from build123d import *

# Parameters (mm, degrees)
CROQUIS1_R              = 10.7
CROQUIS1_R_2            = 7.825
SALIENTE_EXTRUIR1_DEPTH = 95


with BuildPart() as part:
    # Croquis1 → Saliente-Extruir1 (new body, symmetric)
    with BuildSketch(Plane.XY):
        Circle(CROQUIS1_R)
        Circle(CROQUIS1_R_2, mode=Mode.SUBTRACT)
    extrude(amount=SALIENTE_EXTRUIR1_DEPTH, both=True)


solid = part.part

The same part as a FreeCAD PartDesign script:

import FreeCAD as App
import Part
import Sketcher

V = App.Vector
Q = App.Units.Quantity

doc = App.newDocument("Part")
params = doc.addObject("Spreadsheet::Sheet", "Params")
for row, (alias, value) in enumerate([
    ("sketch1_diameter", "21.4 mm"),
    ("sketch1_diameter2", "15.65 mm"),
    ("pad1_length", "190 mm"),
], start=1):
    params.set(f"A{row}", alias)
    params.set(f"B{row}", "=" + value)
    params.setAlias(f"B{row}", alias)

body = doc.addObject("PartDesign::Body", "Body")

sketch1 = body.newObject("Sketcher::SketchObject", "Sketch")
sketch1.AttachmentSupport = (doc.getObject("XY_Plane"), [""])
sketch1.MapMode = "FlatFace"
sketch1.addGeometry([
    Part.Circle(V(0, 0, 0), V(0, 0, 1), 11),
    Part.Circle(V(0, 0, 0), V(0, 0, 1), 8),
], False)
sketch1.addConstraint([
    Sketcher.Constraint("Coincident", 0, 3, -1, 1),
    Sketcher.Constraint("Coincident", 1, 3, -1, 1),
    Sketcher.Constraint("Diameter", 0, Q("21.4 mm")),
    Sketcher.Constraint("Diameter", 1, Q("15.65 mm")),
])
sketch1.setExpression("Constraints[2]", "Params.sketch1_diameter")
sketch1.setExpression("Constraints[3]", "Params.sketch1_diameter2")
pad1 = body.newObject("PartDesign::Pad", "Pad")
pad1.Profile = sketch1
pad1.setExpression("Length", "Params.pad1_length")
pad1.Midplane = True

doc.recompute()
